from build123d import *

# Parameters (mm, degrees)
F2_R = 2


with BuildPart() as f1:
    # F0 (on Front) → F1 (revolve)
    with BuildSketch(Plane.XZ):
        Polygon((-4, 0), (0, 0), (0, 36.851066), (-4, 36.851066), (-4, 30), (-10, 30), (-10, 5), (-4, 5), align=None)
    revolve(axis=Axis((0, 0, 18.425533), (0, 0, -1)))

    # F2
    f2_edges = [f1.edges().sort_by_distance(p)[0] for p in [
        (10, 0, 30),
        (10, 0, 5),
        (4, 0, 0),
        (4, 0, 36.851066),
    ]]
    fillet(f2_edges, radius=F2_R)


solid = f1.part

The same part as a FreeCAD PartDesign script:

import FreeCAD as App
import Part
import Sketcher
Q = App.Units.Quantity


def edges_at(feature, points):
    """Names of the edges that pass closest to the given points."""
    edges = feature.Shape.Edges
    near = lambda p: min(range(len(edges)), key=lambda i: edges[i].distToShape(Part.Vertex(*p))[0])
    return sorted({f"Edge{near(p) + 1}" for p in points})

doc = App.newDocument("Part")
params = doc.addObject("Spreadsheet::Sheet", "Params")
for row, (alias, value) in enumerate([
    ("sketch1_width", "4 mm"),
    ("sketch1_width2", "6 mm"),
    ("sketch1_height", "25 mm"),
    ("sketch1_height2", "5 mm"),
    ("revolution_angle", "360 deg"),
    ("fillet_radius", "2 mm"),
], start=1):
    params.set(f"A{row}", alias)
    params.set(f"B{row}", "=" + value)
    params.setAlias(f"B{row}", alias)

body = doc.addObject("PartDesign::Body", "Body")

# Sketch on XZ plane
sketch1 = body.newObject("Sketcher::SketchObject", "Sketch")
sketch1.AttachmentSupport = (doc.getObject("XZ_Plane"), [""])
sketch1.MapMode = "FlatFace"
sketch1.addGeometry([
    Part.LineSegment(App.Vector(-4, 0, 0), App.Vector(0, 0, 0)),  # 0
    Part.LineSegment(App.Vector(0, 0, 0), App.Vector(0, 36.851066, 0)),  # 1
    Part.LineSegment(App.Vector(0, 36.851066, 0), App.Vector(-4, 36.851066, 0)),  # 2
    Part.LineSegment(App.Vector(-4, 36.851066, 0), App.Vector(-4, 30, 0)),  # 3
    Part.LineSegment(App.Vector(-4, 30, 0), App.Vector(-10, 30, 0)),  # 4
    Part.LineSegment(App.Vector(-10, 30, 0), App.Vector(-10, 5, 0)),  # 5
    Part.LineSegment(App.Vector(-10, 5, 0), App.Vector(-4, 5, 0)),  # 6
    Part.LineSegment(App.Vector(-4, 5, 0), App.Vector(-4, 0, 0)),  # 7
], False)
sketch1.addConstraint([
    Sketcher.Constraint("Coincident", 0, 2, 1, 1),
    Sketcher.Constraint("Coincident", 1, 2, 2, 1),
    Sketcher.Constraint("Coincident", 2, 2, 3, 1),
    Sketcher.Constraint("Coincident", 3, 2, 4, 1),
    Sketcher.Constraint("Coincident", 4, 2, 5, 1),
    Sketcher.Constraint("Coincident", 5, 2, 6, 1),
    Sketcher.Constraint("Coincident", 6, 2, 7, 1),
    Sketcher.Constraint("Coincident", 7, 2, 0, 1),
    Sketcher.Constraint("Horizontal", 0),
    Sketcher.Constraint("Vertical", 1),
    Sketcher.Constraint("Horizontal", 2),
    Sketcher.Constraint("Vertical", 3),
    Sketcher.Constraint("Horizontal", 4),
    Sketcher.Constraint("Vertical", 5),
    Sketcher.Constraint("Horizontal", 6),
    Sketcher.Constraint("Vertical", 7),
    Sketcher.Constraint("Coincident", 0, 2, -1, 1),
    Sketcher.Constraint("Vertical", 3, 2, 6, 2),
    Sketcher.Constraint("DistanceX", 0, 1, 0, 2, Q("4 mm")),
    Sketcher.Constraint("DistanceX", 4, 2, 4, 1, Q("6 mm")),
    Sketcher.Constraint("DistanceY", 5, 2, 5, 1, Q("25 mm")),
    Sketcher.Constraint("DistanceY", 7, 2, 7, 1, Q("5 mm")),
    Sketcher.Constraint("DistanceY", 1, 1, 1, 2, Q("36.851066 mm")),
])
sketch1.setExpression("Constraints[18]", "Params.sketch1_width")
sketch1.setExpression("Constraints[19]", "Params.sketch1_width2")
sketch1.setExpression("Constraints[20]", "Params.sketch1_height")
sketch1.setExpression("Constraints[21]", "Params.sketch1_height2")
revolution = body.newObject("PartDesign::Revolution", "Revolution")
revolution.Profile = sketch1
revolution.ReferenceAxis = (sketch1, ["V_Axis"])
revolution.setExpression("Angle", "Params.revolution_angle")
doc.recompute()

fillet = body.newObject("PartDesign::Fillet", "Fillet")
fillet.Base = (revolution, edges_at(revolution, [
    (10, 0, 30),
    (10, 0, 5),
    (4, 0, 0),
    (4, 0, 36.851),
]))
fillet.setExpression("Radius", "Params.fillet_radius")

doc.recompute()
